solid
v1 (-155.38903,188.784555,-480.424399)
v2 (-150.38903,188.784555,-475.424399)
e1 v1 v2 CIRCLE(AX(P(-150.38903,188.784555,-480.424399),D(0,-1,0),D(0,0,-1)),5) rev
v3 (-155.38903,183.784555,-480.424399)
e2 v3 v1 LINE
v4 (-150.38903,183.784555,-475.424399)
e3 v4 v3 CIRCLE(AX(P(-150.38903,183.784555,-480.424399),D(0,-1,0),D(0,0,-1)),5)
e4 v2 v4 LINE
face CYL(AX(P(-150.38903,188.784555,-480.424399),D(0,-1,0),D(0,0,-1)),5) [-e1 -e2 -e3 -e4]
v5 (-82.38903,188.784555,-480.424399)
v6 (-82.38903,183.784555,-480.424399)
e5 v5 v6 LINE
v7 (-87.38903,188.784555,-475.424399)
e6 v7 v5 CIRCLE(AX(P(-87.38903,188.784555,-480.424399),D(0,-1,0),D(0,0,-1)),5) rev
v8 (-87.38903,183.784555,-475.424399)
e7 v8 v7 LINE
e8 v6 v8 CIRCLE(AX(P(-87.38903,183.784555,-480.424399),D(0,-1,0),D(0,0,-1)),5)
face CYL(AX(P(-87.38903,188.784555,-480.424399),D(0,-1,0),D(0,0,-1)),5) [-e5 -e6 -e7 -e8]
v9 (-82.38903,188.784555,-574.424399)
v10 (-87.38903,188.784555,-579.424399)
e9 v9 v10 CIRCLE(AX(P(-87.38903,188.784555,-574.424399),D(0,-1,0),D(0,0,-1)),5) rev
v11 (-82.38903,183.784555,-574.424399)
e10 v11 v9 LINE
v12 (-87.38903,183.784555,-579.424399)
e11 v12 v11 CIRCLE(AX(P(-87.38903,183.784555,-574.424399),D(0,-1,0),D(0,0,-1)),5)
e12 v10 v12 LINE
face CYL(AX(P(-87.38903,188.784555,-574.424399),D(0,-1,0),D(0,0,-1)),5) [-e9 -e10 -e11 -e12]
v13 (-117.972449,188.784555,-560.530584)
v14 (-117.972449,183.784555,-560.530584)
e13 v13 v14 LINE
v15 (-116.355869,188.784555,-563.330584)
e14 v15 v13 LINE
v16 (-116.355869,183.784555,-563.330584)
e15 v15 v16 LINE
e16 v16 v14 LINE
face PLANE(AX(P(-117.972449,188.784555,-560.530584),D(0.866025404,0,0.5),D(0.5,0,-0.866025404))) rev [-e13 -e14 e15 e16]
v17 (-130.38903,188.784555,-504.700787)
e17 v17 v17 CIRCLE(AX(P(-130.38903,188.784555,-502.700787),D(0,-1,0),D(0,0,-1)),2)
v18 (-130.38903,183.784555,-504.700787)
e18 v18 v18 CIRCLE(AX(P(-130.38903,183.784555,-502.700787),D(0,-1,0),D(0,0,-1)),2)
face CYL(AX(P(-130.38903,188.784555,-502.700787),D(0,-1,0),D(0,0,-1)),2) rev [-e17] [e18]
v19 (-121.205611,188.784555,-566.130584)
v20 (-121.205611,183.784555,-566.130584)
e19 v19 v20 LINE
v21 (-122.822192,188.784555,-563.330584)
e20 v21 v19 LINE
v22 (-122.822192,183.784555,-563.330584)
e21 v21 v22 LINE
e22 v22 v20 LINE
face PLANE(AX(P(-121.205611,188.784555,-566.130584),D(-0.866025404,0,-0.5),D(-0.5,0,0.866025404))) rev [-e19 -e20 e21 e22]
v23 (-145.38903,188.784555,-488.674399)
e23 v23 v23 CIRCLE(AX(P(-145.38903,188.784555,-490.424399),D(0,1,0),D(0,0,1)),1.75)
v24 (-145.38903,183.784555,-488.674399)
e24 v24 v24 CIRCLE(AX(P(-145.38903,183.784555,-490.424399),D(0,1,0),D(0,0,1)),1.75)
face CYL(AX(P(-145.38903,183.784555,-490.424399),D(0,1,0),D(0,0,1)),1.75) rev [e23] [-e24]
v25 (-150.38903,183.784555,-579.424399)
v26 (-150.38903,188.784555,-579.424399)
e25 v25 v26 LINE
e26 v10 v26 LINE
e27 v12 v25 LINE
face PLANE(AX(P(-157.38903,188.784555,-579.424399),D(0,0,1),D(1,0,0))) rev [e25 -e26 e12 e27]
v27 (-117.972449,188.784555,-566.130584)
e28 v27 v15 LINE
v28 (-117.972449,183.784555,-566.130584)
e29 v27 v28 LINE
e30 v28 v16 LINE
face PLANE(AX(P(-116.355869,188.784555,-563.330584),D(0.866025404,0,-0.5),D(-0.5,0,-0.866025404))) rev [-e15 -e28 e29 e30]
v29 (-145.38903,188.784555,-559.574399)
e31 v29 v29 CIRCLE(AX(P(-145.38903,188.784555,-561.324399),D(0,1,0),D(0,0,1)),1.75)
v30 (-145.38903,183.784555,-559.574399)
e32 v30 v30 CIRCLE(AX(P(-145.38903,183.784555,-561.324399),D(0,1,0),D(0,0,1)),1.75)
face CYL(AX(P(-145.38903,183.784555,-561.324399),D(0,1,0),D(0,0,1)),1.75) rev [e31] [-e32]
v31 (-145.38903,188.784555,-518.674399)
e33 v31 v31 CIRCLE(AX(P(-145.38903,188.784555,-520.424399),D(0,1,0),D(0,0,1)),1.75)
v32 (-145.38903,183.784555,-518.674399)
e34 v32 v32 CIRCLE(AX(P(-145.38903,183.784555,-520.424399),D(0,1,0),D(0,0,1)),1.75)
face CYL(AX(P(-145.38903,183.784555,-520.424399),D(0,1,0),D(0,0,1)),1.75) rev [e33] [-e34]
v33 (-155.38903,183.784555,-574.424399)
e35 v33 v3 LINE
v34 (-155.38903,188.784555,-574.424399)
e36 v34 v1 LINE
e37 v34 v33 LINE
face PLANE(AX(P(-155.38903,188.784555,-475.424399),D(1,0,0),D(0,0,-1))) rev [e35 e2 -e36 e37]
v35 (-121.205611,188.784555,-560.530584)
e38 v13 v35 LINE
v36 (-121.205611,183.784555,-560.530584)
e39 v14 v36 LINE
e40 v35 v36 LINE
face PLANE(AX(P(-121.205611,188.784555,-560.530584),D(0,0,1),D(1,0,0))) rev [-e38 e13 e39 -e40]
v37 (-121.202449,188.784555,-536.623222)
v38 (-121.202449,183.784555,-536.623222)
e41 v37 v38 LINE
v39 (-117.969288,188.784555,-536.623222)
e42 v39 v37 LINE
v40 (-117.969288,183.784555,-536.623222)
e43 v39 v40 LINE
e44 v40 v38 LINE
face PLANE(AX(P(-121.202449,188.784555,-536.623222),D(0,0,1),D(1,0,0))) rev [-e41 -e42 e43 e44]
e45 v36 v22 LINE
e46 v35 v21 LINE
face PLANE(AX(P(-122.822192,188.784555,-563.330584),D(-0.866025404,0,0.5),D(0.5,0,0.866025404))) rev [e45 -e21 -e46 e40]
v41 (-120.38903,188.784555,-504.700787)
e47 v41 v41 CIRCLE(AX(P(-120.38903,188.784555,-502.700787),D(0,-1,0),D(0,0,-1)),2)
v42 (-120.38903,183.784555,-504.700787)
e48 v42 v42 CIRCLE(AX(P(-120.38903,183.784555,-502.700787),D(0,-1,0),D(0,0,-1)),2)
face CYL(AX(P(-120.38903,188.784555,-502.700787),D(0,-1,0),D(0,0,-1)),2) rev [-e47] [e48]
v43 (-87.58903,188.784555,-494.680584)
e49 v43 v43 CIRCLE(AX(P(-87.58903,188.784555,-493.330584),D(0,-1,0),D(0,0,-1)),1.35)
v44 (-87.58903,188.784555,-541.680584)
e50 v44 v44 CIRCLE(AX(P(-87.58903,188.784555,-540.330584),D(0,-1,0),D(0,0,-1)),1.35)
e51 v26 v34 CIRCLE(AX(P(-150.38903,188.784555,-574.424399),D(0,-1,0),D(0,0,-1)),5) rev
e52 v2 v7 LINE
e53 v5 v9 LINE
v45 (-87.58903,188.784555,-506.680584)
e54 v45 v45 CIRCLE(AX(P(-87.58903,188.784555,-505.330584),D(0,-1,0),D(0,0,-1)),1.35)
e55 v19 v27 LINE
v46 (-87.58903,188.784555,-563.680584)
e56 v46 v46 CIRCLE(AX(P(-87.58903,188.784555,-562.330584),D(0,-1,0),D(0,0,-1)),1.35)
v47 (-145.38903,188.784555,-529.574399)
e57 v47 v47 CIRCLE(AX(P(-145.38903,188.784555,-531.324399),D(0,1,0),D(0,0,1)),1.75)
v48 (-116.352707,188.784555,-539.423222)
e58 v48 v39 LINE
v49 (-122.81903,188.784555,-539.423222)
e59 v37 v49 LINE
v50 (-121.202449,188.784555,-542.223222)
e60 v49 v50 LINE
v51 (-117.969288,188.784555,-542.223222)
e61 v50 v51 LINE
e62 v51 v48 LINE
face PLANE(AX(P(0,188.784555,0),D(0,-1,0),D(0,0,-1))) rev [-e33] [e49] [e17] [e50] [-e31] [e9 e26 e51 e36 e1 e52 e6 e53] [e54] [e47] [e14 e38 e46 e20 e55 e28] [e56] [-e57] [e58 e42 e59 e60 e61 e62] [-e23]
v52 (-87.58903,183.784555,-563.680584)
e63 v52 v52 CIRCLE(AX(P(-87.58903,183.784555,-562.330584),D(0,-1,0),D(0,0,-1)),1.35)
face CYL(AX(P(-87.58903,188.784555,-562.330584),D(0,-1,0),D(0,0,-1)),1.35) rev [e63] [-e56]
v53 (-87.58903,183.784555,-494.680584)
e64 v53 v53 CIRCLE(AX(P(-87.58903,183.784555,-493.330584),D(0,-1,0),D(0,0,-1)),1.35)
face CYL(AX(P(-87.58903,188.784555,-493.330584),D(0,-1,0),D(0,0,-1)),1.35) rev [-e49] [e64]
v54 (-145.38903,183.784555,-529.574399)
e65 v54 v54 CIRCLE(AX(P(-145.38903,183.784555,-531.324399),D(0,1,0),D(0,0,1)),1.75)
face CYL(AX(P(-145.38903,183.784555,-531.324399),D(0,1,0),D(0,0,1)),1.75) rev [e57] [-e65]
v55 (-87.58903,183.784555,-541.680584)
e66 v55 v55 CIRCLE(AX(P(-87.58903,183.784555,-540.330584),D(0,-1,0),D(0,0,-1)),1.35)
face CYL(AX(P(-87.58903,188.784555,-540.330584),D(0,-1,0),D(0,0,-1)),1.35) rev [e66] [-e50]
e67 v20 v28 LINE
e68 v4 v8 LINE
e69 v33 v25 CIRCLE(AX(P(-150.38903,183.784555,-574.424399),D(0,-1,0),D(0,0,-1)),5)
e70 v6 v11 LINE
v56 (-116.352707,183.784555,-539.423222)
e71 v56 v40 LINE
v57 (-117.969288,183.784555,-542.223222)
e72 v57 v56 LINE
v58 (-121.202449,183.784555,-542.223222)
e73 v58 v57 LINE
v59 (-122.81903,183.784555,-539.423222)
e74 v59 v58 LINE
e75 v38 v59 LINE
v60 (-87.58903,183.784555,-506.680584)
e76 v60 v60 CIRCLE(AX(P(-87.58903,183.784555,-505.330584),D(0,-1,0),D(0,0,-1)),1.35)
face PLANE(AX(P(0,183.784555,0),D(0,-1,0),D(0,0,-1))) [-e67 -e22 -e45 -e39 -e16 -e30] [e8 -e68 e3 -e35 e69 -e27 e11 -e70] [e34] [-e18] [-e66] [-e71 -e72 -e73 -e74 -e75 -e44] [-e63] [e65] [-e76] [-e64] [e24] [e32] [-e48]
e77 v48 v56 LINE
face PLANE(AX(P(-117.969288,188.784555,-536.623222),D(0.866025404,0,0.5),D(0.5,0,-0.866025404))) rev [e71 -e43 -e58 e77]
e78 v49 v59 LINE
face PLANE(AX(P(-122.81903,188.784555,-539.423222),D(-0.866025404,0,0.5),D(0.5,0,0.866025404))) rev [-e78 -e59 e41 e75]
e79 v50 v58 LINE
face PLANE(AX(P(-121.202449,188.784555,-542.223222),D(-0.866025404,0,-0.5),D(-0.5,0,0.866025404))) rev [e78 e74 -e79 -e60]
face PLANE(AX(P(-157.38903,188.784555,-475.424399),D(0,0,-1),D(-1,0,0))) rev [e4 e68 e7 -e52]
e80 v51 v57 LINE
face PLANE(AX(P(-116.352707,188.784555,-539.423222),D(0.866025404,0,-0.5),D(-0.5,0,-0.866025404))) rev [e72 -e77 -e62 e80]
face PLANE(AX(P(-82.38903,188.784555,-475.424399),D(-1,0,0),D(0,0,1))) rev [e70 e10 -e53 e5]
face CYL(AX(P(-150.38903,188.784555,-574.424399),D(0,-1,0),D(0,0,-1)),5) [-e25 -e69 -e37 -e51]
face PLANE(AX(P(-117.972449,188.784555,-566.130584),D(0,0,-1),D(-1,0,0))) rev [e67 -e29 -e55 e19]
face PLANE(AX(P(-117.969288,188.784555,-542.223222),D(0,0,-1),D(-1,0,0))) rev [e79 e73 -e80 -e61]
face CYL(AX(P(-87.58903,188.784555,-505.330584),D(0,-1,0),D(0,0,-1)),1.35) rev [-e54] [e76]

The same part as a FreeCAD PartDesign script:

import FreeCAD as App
import Part
import Sketcher
Q = App.Units.Quantity


def edges_at(feature, points):
    """Names of the edges that pass closest to the given points."""
    edges = feature.Shape.Edges
    near = lambda p: min(range(len(edges)), key=lambda i: edges[i].distToShape(Part.Vertex(*p))[0])
    return sorted({f"Edge{near(p) + 1}" for p in points})

doc = App.newDocument("Part")
params = doc.addObject("Spreadsheet::Sheet", "Params")
for row, (alias, value) in enumerate([
    ("sketch1_width", "75 mm"),
    ("sketch1_height", "104 mm"),
    ("pad1_length", "5 mm"),
    ("sketch2_diameter", "3.5 mm"),
    ("sketch3_diameter", "4 mm"),
    ("sketch3_diameter2", "2.7 mm"),
    ("sketch4_width", "2 mm"),
    ("sketch4_height", "104 mm"),
    ("fillet_radius", "5 mm"),
], start=1):
    params.set(f"A{row}", alias)
    params.set(f"B{row}", "=" + value)
    params.setAlias(f"B{row}", alias)

body = doc.addObject("PartDesign::Body", "Body")

# Sketch on XZ plane
sketch1 = doc.addObject("Sketcher::SketchObject", "Sketch")
body.addObject(sketch1)
sketch1.AttachmentSupport = (doc.XZ_Plane, [""])
sketch1.MapMode = "FlatFace"
sketch1.AttachmentOffset = App.Placement(App.Vector(0, 0, -183.784555), App.Rotation())
sketch1.addGeometry(Part.LineSegment(App.Vector(-157.38903, -579.424399, 0), App.Vector(-157.38903, -475.424399, 0)), False)
sketch1.addGeometry(Part.LineSegment(App.Vector(-157.38903, -475.424399, 0), App.Vector(-82.38903, -475.424399, 0)), False)
sketch1.addGeometry(Part.LineSegment(App.Vector(-82.38903, -475.424399, 0), App.Vector(-82.38903, -579.424399, 0)), False)
sketch1.addGeometry(Part.LineSegment(App.Vector(-82.38903, -579.424399, 0), App.Vector(-157.38903, -579.424399, 0)), False)
sketch1.addConstraint(Sketcher.Constraint("Coincident", 0, 2, 1, 1))
sketch1.addConstraint(Sketcher.Constraint("Coincident", 1, 2, 2, 1))
sketch1.addConstraint(Sketcher.Constraint("Coincident", 2, 2, 3, 1))
sketch1.addConstraint(Sketcher.Constraint("Coincident", 3, 2, 0, 1))
sketch1.addConstraint(Sketcher.Constraint("Vertical", 0))
sketch1.addConstraint(Sketcher.Constraint("Horizontal", 1))
sketch1.addConstraint(Sketcher.Constraint("Vertical", 2))
sketch1.addConstraint(Sketcher.Constraint("Horizontal", 3))
sketch1.addConstraint(Sketcher.Constraint("DistanceX", 1, 1, 1, 2, 75.0))
sketch1.addConstraint(Sketcher.Constraint("DistanceY", 0, 1, 0, 2, 104.0))
sketch1.addConstraint(Sketcher.Constraint("DistanceY", 0, 2, -1, 1, 475.424399))
sketch1.addConstraint(Sketcher.Constraint("DistanceX", 0, 2, -1, 1, 157.38903))
sketch1.setExpression("Constraints[8]", "Params.sketch1_width")
sketch1.setExpression("Constraints[9]", "Params.sketch1_height")
pad1 = doc.addObject("PartDesign::Pad", "Pad")
body.addObject(pad1)
pad1.Profile = sketch1
pad1.setExpression("Length", "Params.pad1_length")
pad1.Reversed = True

# Sketch on XZ plane
sketch2 = doc.addObject("Sketcher::SketchObject", "Sketch001")
body.addObject(sketch2)
sketch2.AttachmentSupport = (doc.XZ_Plane, [""])
sketch2.MapMode = "FlatFace"
sketch2.AttachmentOffset = App.Placement(App.Vector(0, 0, -188.784555), App.Rotation())
sketch2.addGeometry(Part.Circle(App.Vector(-145.38903, -490.424399, 0), App.Vector(0, 0, 1), 1.75), False)
sketch2.addGeometry(Part.Circle(App.Vector(-145.38903, -520.424399, 0), App.Vector(0, 0, 1), 1.75), False)
sketch2.addGeometry(Part.Circle(App.Vector(-145.38903, -531.324399, 0), App.Vector(0, 0, 1), 1.75), False)
sketch2.addGeometry(Part.Circle(App.Vector(-145.38903, -561.324399, 0), App.Vector(0, 0, 1), 1.75), False)
sketch2.addConstraint(Sketcher.Constraint("Equal", 0, 1))
sketch2.addConstraint(Sketcher.Constraint("Equal", 1, 2))
sketch2.addConstraint(Sketcher.Constraint("Equal", 2, 3))
sketch2.addConstraint(Sketcher.Constraint("Vertical", 0, 3, 1, 3))
sketch2.addConstraint(Sketcher.Constraint("Vertical", 1, 3, 2, 3))
sketch2.addConstraint(Sketcher.Constraint("Vertical", 2, 3, 3, 3))
sketch2.addConstraint(Sketcher.Constraint("Diameter", 0, 3.5))
sketch2.addConstraint(Sketcher.Constraint("DistanceY", 1, 3, 0, 3, 30.0))
sketch2.addConstraint(Sketcher.Constraint("DistanceY", 3, 3, 2, 3, 30.0))
sketch2.addConstraint(Sketcher.Constraint("DistanceY", 2, 3, 1, 3, 10.9))
sketch2.addConstraint(Sketcher.Constraint("DistanceY", 0, 3, -1, 1, 490.424399))
sketch2.addConstraint(Sketcher.Constraint("DistanceX", 0, 3, -1, 1, 145.38903))
sketch2.setExpression("Constraints[6]", "Params.sketch2_diameter")
pocket1 = doc.addObject("PartDesign::Pocket", "Pocket")
body.addObject(pocket1)
pocket1.Profile = sketch2
pocket1.Type = "ThroughAll"
pocket1.Reversed = True

# Sketch on XZ plane
sketch3 = doc.addObject("Sketcher::SketchObject", "Sketch002")
body.addObject(sketch3)
sketch3.AttachmentSupport = (doc.XZ_Plane, [""])
sketch3.MapMode = "FlatFace"
sketch3.AttachmentOffset = App.Placement(App.Vector(0, 0, -183.784555), App.Rotation())
sketch3.addGeometry(Part.Circle(App.Vector(-87.58903, -493.330584, 0), App.Vector(0, 0, 1), 1.35), False)
sketch3.addGeometry(Part.Circle(App.Vector(-87.58903, -505.330584, 0), App.Vector(0, 0, 1), 1.35), False)
sketch3.addGeometry(Part.Circle(App.Vector(-87.58903, -540.330584, 0), App.Vector(0, 0, 1), 1.35), False)
sketch3.addGeometry(Part.Circle(App.Vector(-87.58903, -562.330584, 0), App.Vector(0, 0, 1), 1.35), False)
sketch3.addGeometry(Part.Circle(App.Vector(-130.38903, -502.700787, 0), App.Vector(0, 0, 1), 2), False)
sketch3.addGeometry(Part.Circle(App.Vector(-120.38903, -502.700787, 0), App.Vector(0, 0, 1), 2), False)
sketch3.addGeometry(Part.LineSegment(App.Vector(-117.972449, -566.130584, 0), App.Vector(-116.355869, -563.330584, 0)), False)
sketch3.addGeometry(Part.LineSegment(App.Vector(-116.355869, -563.330584, 0), App.Vector(-117.972449, -560.530584, 0)), False)
sketch3.addGeometry(Part.LineSegment(App.Vector(-117.972449, -560.530584, 0), App.Vector(-121.205611, -560.530584, 0)), False)
sketch3.addGeometry(Part.LineSegment(App.Vector(-121.205611, -560.530584, 0), App.Vector(-122.822192, -563.330584, 0)), False)
sketch3.addGeometry(Part.LineSegment(App.Vector(-122.822192, -563.330584, 0), App.Vector(-121.205611, -566.130584, 0)), False)
sketch3.addGeometry(Part.LineSegment(App.Vector(-121.205611, -566.130584, 0), App.Vector(-117.972449, -566.130584, 0)), False)
sketch3.addGeometry(Part.LineSegment(App.Vector(-117.969288, -542.223222, 0), App.Vector(-116.352707, -539.423222, 0)), False)
sketch3.addGeometry(Part.LineSegment(App.Vector(-116.352707, -539.423222, 0), App.Vector(-117.969288, -536.623222, 0)), False)
sketch3.addGeometry(Part.LineSegment(App.Vector(-117.969288, -536.623222, 0), App.Vector(-121.202449, -536.623222, 0)), False)
sketch3.addGeometry(Part.LineSegment(App.Vector(-121.202449, -536.623222, 0), App.Vector(-122.81903, -539.423222, 0)), False)
sketch3.addGeometry(Part.LineSegment(App.Vector(-122.81903, -539.423222, 0), App.Vector(-121.202449, -542.223222, 0)), False)
sketch3.addGeometry(Part.LineSegment(App.Vector(-121.202449, -542.223222, 0), App.Vector(-117.969288, -542.223222, 0)), False)
sketch3.addConstraint(Sketcher.Constraint("Coincident", 6, 2, 7, 1))
sketch3.addConstraint(Sketcher.Constraint("Coincident", 7, 2, 8, 1))
sketch3.addConstraint(Sketcher.Constraint("Coincident", 8, 2, 9, 1))
sketch3.addConstraint(Sketcher.Constraint("Coincident", 9, 2, 10, 1))
sketch3.addConstraint(Sketcher.Constraint("Coincident", 10, 2, 11, 1))
sketch3.addConstraint(Sketcher.Constraint("Coincident", 11, 2, 6, 1))
sketch3.addConstraint(Sketcher.Constraint("Coincident", 12, 2, 13, 1))
sketch3.addConstraint(Sketcher.Constraint("Coincident", 13, 2, 14, 1))
sketch3.addConstraint(Sketcher.Constraint("Coincident", 14, 2, 15, 1))
sketch3.addConstraint(Sketcher.Constraint("Coincident", 15, 2, 16, 1))
sketch3.addConstraint(Sketcher.Constraint("Coincident", 16, 2, 17, 1))
sketch3.addConstraint(Sketcher.Constraint("Coincident", 17, 2, 12, 1))
sketch3.addConstraint(Sketcher.Constraint("Horizontal", 8))
sketch3.addConstraint(Sketcher.Constraint("Horizontal", 11))
sketch3.addConstraint(Sketcher.Constraint("Horizontal", 14))
sketch3.addConstraint(Sketcher.Constraint("Horizontal", 17))
sketch3.addConstraint(Sketcher.Constraint("Equal", 0, 1))
sketch3.addConstraint(Sketcher.Constraint("Equal", 1, 2))
sketch3.addConstraint(Sketcher.Constraint("Equal", 2, 3))
sketch3.addConstraint(Sketcher.Constraint("Equal", 4, 5))
sketch3.addConstraint(Sketcher.Constraint("Parallel", 6, 9))
sketch3.addConstraint(Sketcher.Constraint("Parallel", 7, 10))
sketch3.addConstraint(Sketcher.Constraint("Parallel", 9, 12))
sketch3.addConstraint(Sketcher.Constraint("Parallel", 10, 13))
sketch3.addConstraint(Sketcher.Constraint("Parallel", 12, 15))
sketch3.addConstraint(Sketcher.Constraint("Parallel", 13, 16))
sketch3.addConstraint(Sketcher.Constraint("Horizontal", 4, 3, 5, 3))
sketch3.addConstraint(Sketcher.Constraint("Horizontal", 6, 2, 9, 2))
sketch3.addConstraint(Sketcher.Constraint("Horizontal", 12, 2, 15, 2))
sketch3.addConstraint(Sketcher.Constraint("Vertical", 0, 3, 1, 3))
sketch3.addConstraint(Sketcher.Constraint("Vertical", 1, 3, 2, 3))
sketch3.addConstraint(Sketcher.Constraint("Vertical", 2, 3, 3, 3))
sketch3.addConstraint(Sketcher.Constraint("Vertical", 8, 2, 10, 2))
sketch3.addConstraint(Sketcher.Constraint("Vertical", 7, 2, 11, 2))
sketch3.addConstraint(Sketcher.Constraint("Vertical", 14, 2, 16, 2))
sketch3.addConstraint(Sketcher.Constraint("Equal", 11, 14))
sketch3.addConstraint(Sketcher.Constraint("Equal", 10, 12))
sketch3.addConstraint(Sketcher.Constraint("Diameter", 4, 4.0))
sketch3.addConstraint(Sketcher.Constraint("Diameter", 0, 2.7))
sketch3.addConstraint(Sketcher.Constraint("Angle", 6, Q("60 deg")))
sketch3.addConstraint(Sketcher.Constraint("DistanceY", 1, 3, 0, 3, 12.0))
sketch3.addConstraint(Sketcher.Constraint("DistanceY", 2, 3, 1, 3, 35.0))
sketch3.addConstraint(Sketcher.Constraint("DistanceY", 3, 3, 2, 3, 22.0))
sketch3.addConstraint(Sketcher.Constraint("DistanceX", 4, 3, 5, 3, 10.0))
sketch3.addConstraint(Sketcher.Constraint("DistanceY", 6, 2, 3, 3, 1.0))
sketch3.addConstraint(Sketcher.Constraint("DistanceX", 4, 3, 1, 3, 42.8))
sketch3.addConstraint(Sketcher.Constraint("DistanceY", 6, 2, 7, 2, 2.8))
sketch3.addConstraint(Sketcher.Constraint("DistanceX", 14, 2, 7, 2, 3.23))
sketch3.addConstraint(Sketcher.Constraint("DistanceX", 8, 2, 8, 1, 3.233162))
sketch3.addConstraint(Sketcher.Constraint("DistanceX", 0, 3, -1, 1, 87.58903))
sketch3.addConstraint(Sketcher.Constraint("DistanceX", 6, 2, -1, 1, 116.355869))
sketch3.addConstraint(Sketcher.Constraint("DistanceY", 12, 2, -1, 1, 539.423222))
sketch3.addConstraint(Sketcher.Constraint("DistanceY", 0, 3, -1, 1, 493.330584))
sketch3.addConstraint(Sketcher.Constraint("DistanceY", 4, 3, -1, 1, 502.700787))
sketch3.setExpression("Constraints[37]", "Params.sketch3_diameter")
sketch3.setExpression("Constraints[38]", "Params.sketch3_diameter2")
pocket2 = doc.addObject("PartDesign::Pocket", "Pocket001")
body.addObject(pocket2)
pocket2.Profile = sketch3
pocket2.Type = "ThroughAll"

# Sketch on XZ plane
sketch4 = doc.addObject("Sketcher::SketchObject", "Sketch003")
body.addObject(sketch4)
sketch4.AttachmentSupport = (doc.XZ_Plane, [""])
sketch4.MapMode = "FlatFace"
sketch4.AttachmentOffset = App.Placement(App.Vector(0, 0, -183.784555), App.Rotation())
sketch4.addGeometry(Part.LineSegment(App.Vector(-157.38903, -475.424399, 0), App.Vector(-157.38903, -579.424399, 0)), False)
sketch4.addGeometry(Part.LineSegment(App.Vector(-157.38903, -579.424399, 0), App.Vector(-155.38903, -579.424399, 0)), False)
sketch4.addGeometry(Part.LineSegment(App.Vector(-155.38903, -579.424399, 0), App.Vector(-155.38903, -475.424399, 0)), False)
sketch4.addGeometry(Part.LineSegment(App.Vector(-155.38903, -475.424399, 0), App.Vector(-157.38903, -475.424399, 0)), False)
sketch4.addConstraint(Sketcher.Constraint("Coincident", 0, 2, 1, 1))
sketch4.addConstraint(Sketcher.Constraint("Coincident", 1, 2, 2, 1))
sketch4.addConstraint(Sketcher.Constraint("Coincident", 2, 2, 3, 1))
sketch4.addConstraint(Sketcher.Constraint("Coincident", 3, 2, 0, 1))
sketch4.addConstraint(Sketcher.Constraint("Vertical", 0))
sketch4.addConstraint(Sketcher.Constraint("Horizontal", 1))
sketch4.addConstraint(Sketcher.Constraint("Vertical", 2))
sketch4.addConstraint(Sketcher.Constraint("Horizontal", 3))
sketch4.addConstraint(Sketcher.Constraint("DistanceX", 1, 1, 1, 2, 2.0))
sketch4.addConstraint(Sketcher.Constraint("DistanceY", 0, 2, 0, 1, 104.0))
sketch4.addConstraint(Sketcher.Constraint("DistanceY", 0, 2, -1, 1, 579.424399))
sketch4.addConstraint(Sketcher.Constraint("DistanceX", 0, 2, -1, 1, 157.38903))
sketch4.setExpression("Constraints[8]", "Params.sketch4_width")
sketch4.setExpression("Constraints[9]", "Params.sketch4_height")
pocket3 = doc.addObject("PartDesign::Pocket", "Pocket002")
body.addObject(pocket3)
pocket3.Profile = sketch4
pocket3.Type = "ThroughAll"
doc.recompute()

fillet = doc.addObject("PartDesign::Fillet", "Fillet")
body.addObject(fillet)
fillet.Base = (pocket3, edges_at(pocket3, [
    (-155.389, 186.285, -475.424),
    (-155.389, 186.285, -579.424),
    (-82.389, 186.285, -579.424),
    (-82.389, 186.285, -475.424),
]))
fillet.setExpression("Radius", "Params.fillet_radius")

doc.recompute()
